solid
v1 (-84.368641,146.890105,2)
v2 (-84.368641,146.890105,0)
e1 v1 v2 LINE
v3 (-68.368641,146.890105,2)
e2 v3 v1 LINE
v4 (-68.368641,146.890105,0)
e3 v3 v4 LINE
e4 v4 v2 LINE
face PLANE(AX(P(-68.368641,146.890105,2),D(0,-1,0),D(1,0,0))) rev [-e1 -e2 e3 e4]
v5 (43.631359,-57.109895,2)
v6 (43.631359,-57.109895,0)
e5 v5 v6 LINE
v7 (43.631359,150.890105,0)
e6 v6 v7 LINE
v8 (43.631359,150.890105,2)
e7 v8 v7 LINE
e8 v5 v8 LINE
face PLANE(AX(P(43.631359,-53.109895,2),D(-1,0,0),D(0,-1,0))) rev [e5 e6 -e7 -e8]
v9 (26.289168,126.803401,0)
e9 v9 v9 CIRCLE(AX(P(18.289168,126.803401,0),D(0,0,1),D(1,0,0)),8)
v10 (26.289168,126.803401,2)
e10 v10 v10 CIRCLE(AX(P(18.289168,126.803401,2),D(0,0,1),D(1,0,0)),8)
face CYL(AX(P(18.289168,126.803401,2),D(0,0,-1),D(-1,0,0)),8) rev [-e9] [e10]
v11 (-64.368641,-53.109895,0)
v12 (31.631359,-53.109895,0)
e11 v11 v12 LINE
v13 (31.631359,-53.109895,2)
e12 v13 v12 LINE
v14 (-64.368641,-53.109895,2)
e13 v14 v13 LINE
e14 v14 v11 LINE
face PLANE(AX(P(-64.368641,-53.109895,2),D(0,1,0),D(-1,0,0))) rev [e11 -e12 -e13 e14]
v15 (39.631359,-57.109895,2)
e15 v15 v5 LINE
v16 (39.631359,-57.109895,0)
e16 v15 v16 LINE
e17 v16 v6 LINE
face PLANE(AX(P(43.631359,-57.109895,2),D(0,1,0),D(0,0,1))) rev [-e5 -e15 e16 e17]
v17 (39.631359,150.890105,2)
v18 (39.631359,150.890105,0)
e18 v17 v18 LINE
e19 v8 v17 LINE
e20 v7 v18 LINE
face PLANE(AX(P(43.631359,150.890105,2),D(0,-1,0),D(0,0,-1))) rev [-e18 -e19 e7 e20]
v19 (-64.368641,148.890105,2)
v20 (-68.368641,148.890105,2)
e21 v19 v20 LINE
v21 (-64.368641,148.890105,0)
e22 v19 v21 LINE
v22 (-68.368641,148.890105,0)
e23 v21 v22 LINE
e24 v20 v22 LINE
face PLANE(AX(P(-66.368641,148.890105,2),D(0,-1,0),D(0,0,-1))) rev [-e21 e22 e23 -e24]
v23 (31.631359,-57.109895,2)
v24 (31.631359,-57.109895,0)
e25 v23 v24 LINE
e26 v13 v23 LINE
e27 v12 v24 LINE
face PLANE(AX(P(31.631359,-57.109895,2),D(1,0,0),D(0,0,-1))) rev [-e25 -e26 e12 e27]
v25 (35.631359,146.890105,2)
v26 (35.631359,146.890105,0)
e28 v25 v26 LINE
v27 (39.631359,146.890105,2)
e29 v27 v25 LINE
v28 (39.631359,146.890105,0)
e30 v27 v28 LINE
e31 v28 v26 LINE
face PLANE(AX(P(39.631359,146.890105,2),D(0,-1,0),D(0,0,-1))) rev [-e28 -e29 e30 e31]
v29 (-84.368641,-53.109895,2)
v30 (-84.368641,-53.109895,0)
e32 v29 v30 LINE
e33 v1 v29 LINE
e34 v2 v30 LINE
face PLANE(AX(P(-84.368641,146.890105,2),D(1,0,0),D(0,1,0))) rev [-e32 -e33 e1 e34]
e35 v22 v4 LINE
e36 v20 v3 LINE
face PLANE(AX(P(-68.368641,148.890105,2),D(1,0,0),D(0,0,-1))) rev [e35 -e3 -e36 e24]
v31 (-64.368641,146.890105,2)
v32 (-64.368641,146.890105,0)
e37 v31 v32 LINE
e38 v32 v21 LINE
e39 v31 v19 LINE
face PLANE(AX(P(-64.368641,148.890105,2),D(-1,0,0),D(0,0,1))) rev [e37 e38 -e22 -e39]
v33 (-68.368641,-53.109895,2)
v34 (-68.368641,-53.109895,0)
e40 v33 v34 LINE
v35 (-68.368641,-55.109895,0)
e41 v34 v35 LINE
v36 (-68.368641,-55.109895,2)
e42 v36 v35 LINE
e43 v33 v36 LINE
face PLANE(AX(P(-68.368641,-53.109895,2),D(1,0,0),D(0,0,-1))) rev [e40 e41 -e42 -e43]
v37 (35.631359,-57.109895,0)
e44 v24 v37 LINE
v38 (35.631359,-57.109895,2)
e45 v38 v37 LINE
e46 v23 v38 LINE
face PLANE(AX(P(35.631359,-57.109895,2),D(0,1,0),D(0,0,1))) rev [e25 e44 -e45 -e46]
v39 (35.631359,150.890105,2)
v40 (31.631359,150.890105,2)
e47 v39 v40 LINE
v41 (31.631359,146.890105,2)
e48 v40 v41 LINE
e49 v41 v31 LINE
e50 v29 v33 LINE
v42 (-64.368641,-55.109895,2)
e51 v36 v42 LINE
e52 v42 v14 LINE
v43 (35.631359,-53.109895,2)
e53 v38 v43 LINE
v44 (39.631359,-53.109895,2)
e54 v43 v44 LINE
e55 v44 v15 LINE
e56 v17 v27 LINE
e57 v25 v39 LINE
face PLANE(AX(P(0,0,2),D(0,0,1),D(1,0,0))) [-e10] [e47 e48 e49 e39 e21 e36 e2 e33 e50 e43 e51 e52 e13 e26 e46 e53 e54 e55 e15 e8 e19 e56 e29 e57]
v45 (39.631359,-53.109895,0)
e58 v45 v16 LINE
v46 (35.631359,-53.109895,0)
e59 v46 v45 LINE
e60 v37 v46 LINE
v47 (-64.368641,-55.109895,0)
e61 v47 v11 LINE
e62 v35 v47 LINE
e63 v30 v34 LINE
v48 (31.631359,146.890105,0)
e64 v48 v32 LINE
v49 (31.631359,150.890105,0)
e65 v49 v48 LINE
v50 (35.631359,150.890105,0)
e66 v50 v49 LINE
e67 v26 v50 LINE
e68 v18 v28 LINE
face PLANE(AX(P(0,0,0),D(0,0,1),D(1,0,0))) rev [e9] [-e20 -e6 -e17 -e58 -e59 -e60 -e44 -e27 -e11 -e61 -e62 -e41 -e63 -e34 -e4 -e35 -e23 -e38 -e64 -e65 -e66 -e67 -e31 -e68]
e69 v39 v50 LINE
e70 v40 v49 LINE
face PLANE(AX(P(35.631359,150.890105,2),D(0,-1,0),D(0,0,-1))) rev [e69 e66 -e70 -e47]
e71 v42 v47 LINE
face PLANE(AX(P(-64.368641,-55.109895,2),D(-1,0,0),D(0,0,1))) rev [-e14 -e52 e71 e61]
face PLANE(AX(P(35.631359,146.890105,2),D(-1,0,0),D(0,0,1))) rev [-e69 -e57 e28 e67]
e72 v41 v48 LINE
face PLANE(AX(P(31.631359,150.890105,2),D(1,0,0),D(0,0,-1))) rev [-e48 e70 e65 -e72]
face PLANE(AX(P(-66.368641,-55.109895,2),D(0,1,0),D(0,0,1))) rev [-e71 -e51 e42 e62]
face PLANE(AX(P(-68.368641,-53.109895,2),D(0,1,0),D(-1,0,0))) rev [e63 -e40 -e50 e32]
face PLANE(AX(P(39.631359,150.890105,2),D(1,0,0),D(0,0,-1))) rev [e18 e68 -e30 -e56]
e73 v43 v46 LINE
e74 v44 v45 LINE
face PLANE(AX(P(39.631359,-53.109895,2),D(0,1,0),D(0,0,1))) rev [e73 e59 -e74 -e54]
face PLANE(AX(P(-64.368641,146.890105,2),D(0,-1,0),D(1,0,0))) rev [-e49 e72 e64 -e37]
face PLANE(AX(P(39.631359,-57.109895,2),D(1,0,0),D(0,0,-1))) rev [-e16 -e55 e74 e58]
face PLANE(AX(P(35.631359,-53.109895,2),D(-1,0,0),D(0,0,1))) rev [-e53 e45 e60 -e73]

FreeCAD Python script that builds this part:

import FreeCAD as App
import Part
import Sketcher

doc = App.newDocument("Part")
body = doc.addObject("PartDesign::Body", "Body")

# Sketch on XY plane
sketch1 = body.newObject("Sketcher::SketchObject", "Sketch")
sketch1.AttachmentSupport = (doc.getObject("XY_Plane"), [""])
sketch1.MapMode = "FlatFace"
sketch1.addGeometry([
    Part.LineSegment(App.Vector(43.6, -57.1, 0), App.Vector(43.6, 150.9, 0)),  # 0
    Part.LineSegment(App.Vector(43.6, 150.9, 0), App.Vector(39.6, 150.9, 0)),  # 1
    Part.LineSegment(App.Vector(39.6, 150.9, 0), App.Vector(39.6, 146.9, 0)),  # 2
    Part.LineSegment(App.Vector(39.6, 146.9, 0), App.Vector(35.6, 146.9, 0)),  # 3
    Part.LineSegment(App.Vector(35.6, 146.9, 0), App.Vector(35.6, 150.9, 0)),  # 4
    Part.LineSegment(App.Vector(35.6, 150.9, 0), App.Vector(31.6, 150.9, 0)),  # 5
    Part.LineSegment(App.Vector(31.6, 150.9, 0), App.Vector(31.6, 146.9, 0)),  # 6
    Part.LineSegment(App.Vector(31.6, 146.9, 0), App.Vector(-64.4, 146.9, 0)),  # 7
    Part.LineSegment(App.Vector(-64.4, 146.9, 0), App.Vector(-64.4, 148.9, 0)),  # 8
    Part.LineSegment(App.Vector(-64.4, 148.9, 0), App.Vector(-68.4, 148.9, 0)),  # 9
    Part.LineSegment(App.Vector(-68.4, 148.9, 0), App.Vector(-68.4, 146.9, 0)),  # 10
    Part.LineSegment(App.Vector(-68.4, 146.9, 0), App.Vector(-84.4, 146.9, 0)),  # 11
    Part.LineSegment(App.Vector(-84.4, 146.9, 0), App.Vector(-84.4, -53.1, 0)),  # 12
    Part.LineSegment(App.Vector(-84.4, -53.1, 0), App.Vector(-68.4, -53.1, 0)),  # 13
    Part.LineSegment(App.Vector(-68.4, -53.1, 0), App.Vector(-68.4, -55.1, 0)),  # 14
    Part.LineSegment(App.Vector(-68.4, -55.1, 0), App.Vector(-64.4, -55.1, 0)),  # 15
    Part.LineSegment(App.Vector(-64.4, -55.1, 0), App.Vector(-64.4, -53.1, 0)),  # 16
    Part.LineSegment(App.Vector(-64.4, -53.1, 0), App.Vector(31.6, -53.1, 0)),  # 17
    Part.LineSegment(App.Vector(31.6, -53.1, 0), App.Vector(31.6, -57.1, 0)),  # 18
    Part.LineSegment(App.Vector(31.6, -57.1, 0), App.Vector(35.6, -57.1, 0)),  # 19
    Part.LineSegment(App.Vector(35.6, -57.1, 0), App.Vector(35.6, -53.1, 0)),  # 20
    Part.LineSegment(App.Vector(35.6, -53.1, 0), App.Vector(39.6, -53.1, 0)),  # 21
    Part.LineSegment(App.Vector(39.6, -53.1, 0), App.Vector(39.6, -57.1, 0)),  # 22
    Part.LineSegment(App.Vector(39.6, -57.1, 0), App.Vector(43.6, -57.1, 0)),  # 23
    Part.Circle(App.Vector(18.3, 126.8, 0), App.Vector(0, 0, 1), 8),  # 24
], False)
sketch1.addConstraint([
    Sketcher.Constraint("Coincident", 0, 2, 1, 1),
    Sketcher.Constraint("Coincident", 1, 2, 2, 1),
    Sketcher.Constraint("Coincident", 2, 2, 3, 1),
    Sketcher.Constraint("Coincident", 3, 2, 4, 1),
    Sketcher.Constraint("Coincident", 4, 2, 5, 1),
    Sketcher.Constraint("Coincident", 5, 2, 6, 1),
    Sketcher.Constraint("Coincident", 6, 2, 7, 1),
    Sketcher.Constraint("Coincident", 7, 2, 8, 1),
    Sketcher.Constraint("Coincident", 8, 2, 9, 1),
    Sketcher.Constraint("Coincident", 9, 2, 10, 1),
    Sketcher.Constraint("Coincident", 10, 2, 11, 1),
    Sketcher.Constraint("Coincident", 11, 2, 12, 1),
    Sketcher.Constraint("Coincident", 12, 2, 13, 1),
    Sketcher.Constraint("Coincident", 13, 2, 14, 1),
    Sketcher.Constraint("Coincident", 14, 2, 15, 1),
    Sketcher.Constraint("Coincident", 15, 2, 16, 1),
    Sketcher.Constraint("Coincident", 16, 2, 17, 1),
    Sketcher.Constraint("Coincident", 17, 2, 18, 1),
    Sketcher.Constraint("Coincident", 18, 2, 19, 1),
    Sketcher.Constraint("Coincident", 19, 2, 20, 1),
    Sketcher.Constraint("Coincident", 20, 2, 21, 1),
    Sketcher.Constraint("Coincident", 21, 2, 22, 1),
    Sketcher.Constraint("Coincident", 22, 2, 23, 1),
    Sketcher.Constraint("Coincident", 23, 2, 0, 1),
    Sketcher.Constraint("Vertical", 0),
    Sketcher.Constraint("Horizontal", 1),
    Sketcher.Constraint("Vertical", 2),
    Sketcher.Constraint("Horizontal", 3),
    Sketcher.Constraint("Vertical", 4),
    Sketcher.Constraint("Horizontal", 5),
    Sketcher.Constraint("Vertical", 6),
    Sketcher.Constraint("Horizontal", 7),
    Sketcher.Constraint("Vertical", 8),
    Sketcher.Constraint("Horizontal", 9),
    Sketcher.Constraint("Vertical", 10),
    Sketcher.Constraint("Horizontal", 11),
    Sketcher.Constraint("Vertical", 12),
    Sketcher.Constraint("Horizontal", 13),
    Sketcher.Constraint("Vertical", 14),
    Sketcher.Constraint("Horizontal", 15),
    Sketcher.Constraint("Vertical", 16),
    Sketcher.Constraint("Horizontal", 17),
    Sketcher.Constraint("Vertical", 18),
    Sketcher.Constraint("Horizontal", 19),
    Sketcher.Constraint("Vertical", 20),
    Sketcher.Constraint("Horizontal", 21),
    Sketcher.Constraint("Vertical", 22),
    Sketcher.Constraint("Horizontal", 23),
    Sketcher.Constraint("Horizontal", 1, 2, 4, 2),
    Sketcher.Constraint("Horizontal", 3, 2, 6, 2),
    Sketcher.Constraint("Horizontal", 7, 2, 10, 2),
    Sketcher.Constraint("Horizontal", 13, 2, 16, 2),
    Sketcher.Constraint("Horizontal", 17, 2, 20, 2),
    Sketcher.Constraint("Horizontal", 19, 2, 22, 2),
    Sketcher.Constraint("Vertical", 10, 2, 13, 2),
    Sketcher.Constraint("Vertical", 8, 2, 15, 2),
    Sketcher.Constraint("Vertical", 6, 2, 17, 2),
    Sketcher.Constraint("Vertical", 4, 2, 19, 2),
    Sketcher.Constraint("Vertical", 2, 2, 21, 2),
    Sketcher.Constraint("Equal", 1, 3),
    Sketcher.Constraint("Equal", 3, 5),
    Sketcher.Constraint("Equal", 5, 9),
    Sketcher.Constraint("Equal", 23, 2),
    Sketcher.Constraint("Equal", 10, 14),
    Sketcher.Constraint("Equal", 6, 18),
    Sketcher.Constraint("Diameter", 24, 16.0),
    Sketcher.Constraint("DistanceX", 1, 2, 1, 1, 4.0),
    Sketcher.Constraint("DistanceX", 7, 2, 7, 1, 96.0),
    Sketcher.Constraint("DistanceX", 11, 2, 11, 1, 16.0),
    Sketcher.Constraint("DistanceY", 0, 1, 0, 2, 208.0),
    Sketcher.Constraint("DistanceY", 8, 1, 8, 2, 2.0),
    Sketcher.Constraint("DistanceY", -1, 1, 24, 3, 126.803401),
    Sketcher.Constraint("DistanceX", -1, 1, 24, 3, 18.289168),
    Sketcher.Constraint("DistanceX", -1, 1, 0, 2, 43.631359),
    Sketcher.Constraint("DistanceY", -1, 1, 0, 2, 150.890105),
])
pad1 = body.newObject("PartDesign::Pad", "Pad")
pad1.Profile = sketch1
pad1.Length = 2

doc.recompute()
